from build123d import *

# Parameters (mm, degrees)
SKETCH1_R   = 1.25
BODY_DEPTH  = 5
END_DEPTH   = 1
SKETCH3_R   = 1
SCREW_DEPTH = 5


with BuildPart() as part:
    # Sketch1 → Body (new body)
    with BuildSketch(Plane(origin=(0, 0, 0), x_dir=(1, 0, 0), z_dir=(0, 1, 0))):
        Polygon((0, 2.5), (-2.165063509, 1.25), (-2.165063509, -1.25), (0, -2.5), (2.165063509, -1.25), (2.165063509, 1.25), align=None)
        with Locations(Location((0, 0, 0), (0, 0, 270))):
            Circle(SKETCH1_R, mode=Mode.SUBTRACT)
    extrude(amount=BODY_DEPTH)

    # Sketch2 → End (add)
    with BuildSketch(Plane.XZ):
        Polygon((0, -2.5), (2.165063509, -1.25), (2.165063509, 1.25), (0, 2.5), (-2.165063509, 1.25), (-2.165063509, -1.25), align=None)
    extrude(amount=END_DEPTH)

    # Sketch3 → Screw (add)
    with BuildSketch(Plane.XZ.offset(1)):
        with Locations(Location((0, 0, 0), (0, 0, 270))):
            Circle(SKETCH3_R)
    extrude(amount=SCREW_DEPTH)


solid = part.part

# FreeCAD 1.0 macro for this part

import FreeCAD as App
import Part
import Sketcher
from FreeCAD import Vector
Q = App.Units.Quantity

doc = App.newDocument("Part")
body = doc.addObject("PartDesign::Body", "Body")

# Sketch on XZ plane
sketch1 = body.newObject("Sketcher::SketchObject", "Sketch")
sketch1.AttachmentSupport = (doc.getObject("XZ_Plane"), [""])
sketch1.MapMode = "FlatFace"
sketch1.addGeometry([
    Part.LineSegment(Vector(0, -2.5, 0), Vector(-2.2, -1.2, 0)),  # 0
    Part.LineSegment(Vector(-2.2, -1.2, 0), Vector(-2.2, 1.2, 0)),  # 1
    Part.LineSegment(Vector(-2.2, 1.2, 0), Vector(0, 2.5, 0)),  # 2
    Part.LineSegment(Vector(0, 2.5, 0), Vector(2.2, 1.2, 0)),  # 3
    Part.LineSegment(Vector(2.2, 1.2, 0), Vector(2.2, -1.2, 0)),  # 4
    Part.LineSegment(Vector(2.2, -1.2, 0), Vector(0, -2.5, 0)),  # 5
    Part.Circle(Vector(0, 0, 0), Vector(0, 0, 1), 1.2),  # 6
], False)
sketch1.addConstraint([
    Sketcher.Constraint("Coincident", 0, 2, 1, 1),
    Sketcher.Constraint("Coincident", 1, 2, 2, 1),
    Sketcher.Constraint("Coincident", 2, 2, 3, 1),
    Sketcher.Constraint("Coincident", 3, 2, 4, 1),
    Sketcher.Constraint("Coincident", 4, 2, 5, 1),
    Sketcher.Constraint("Coincident", 5, 2, 0, 1),
    Sketcher.Constraint("Vertical", 1),
    Sketcher.Constraint("Vertical", 4),
    Sketcher.Constraint("Coincident", 6, 3, -1, 1),
    Sketcher.Constraint("Symmetric", 0, 2, 3, 2, -1, 1),
    Sketcher.Constraint("Symmetric", 2, 2, 5, 2, -1, 1),
    Sketcher.Constraint("PointOnObject", 2, 2, -2),
    Sketcher.Constraint("Parallel", 2, 5),
    Sketcher.Constraint("Horizontal", 1, 2, 3, 2),
    Sketcher.Constraint("Diameter", 6, Q("2.5 mm")),
    Sketcher.Constraint("Angle", 0, Q("150 deg")),
    Sketcher.Constraint("DistanceY", 1, 1, 1, 2, Q("2.5 mm")),
    Sketcher.Constraint("Distance", 0, Q("2.5 mm")),
])
pad1 = body.newObject("PartDesign::Pad", "Pad")
pad1.Profile = sketch1
pad1.Length = 5
pad1.Reversed = True

# Sketch on XZ plane
sketch2 = body.newObject("Sketcher::SketchObject", "Sketch001")
sketch2.AttachmentSupport = (doc.getObject("XZ_Plane"), [""])
sketch2.MapMode = "FlatFace"
sketch2.addGeometry([
    Part.LineSegment(Vector(0, -2.5, 0), Vector(2.2, -1.2, 0)),  # 0
    Part.LineSegment(Vector(2.2, -1.2, 0), Vector(2.2, 1.2, 0)),  # 1
    Part.LineSegment(Vector(2.2, 1.2, 0), Vector(0, 2.5, 0)),  # 2
    Part.LineSegment(Vector(0, 2.5, 0), Vector(-2.2, 1.2, 0)),  # 3
    Part.LineSegment(Vector(-2.2, 1.2, 0), Vector(-2.2, -1.2, 0)),  # 4
    Part.LineSegment(Vector(-2.2, -1.2, 0), Vector(0, -2.5, 0)),  # 5
], False)
sketch2.addConstraint([
    Sketcher.Constraint("Coincident", 0, 2, 1, 1),
    Sketcher.Constraint("Coincident", 1, 2, 2, 1),
    Sketcher.Constraint("Coincident", 2, 2, 3, 1),
    Sketcher.Constraint("Coincident", 3, 2, 4, 1),
    Sketcher.Constraint("Coincident", 4, 2, 5, 1),
    Sketcher.Constraint("Coincident", 5, 2, 0, 1),
    Sketcher.Constraint("Vertical", 1),
    Sketcher.Constraint("Vertical", 4),
    Sketcher.Constraint("Symmetric", 0, 2, 3, 2, -1, 1),
    Sketcher.Constraint("Symmetric", 2, 2, 5, 2, -1, 1),
    Sketcher.Constraint("PointOnObject", 2, 2, -2),
    Sketcher.Constraint("Parallel", 2, 5),
    Sketcher.Constraint("Horizontal", 1, 2, 3, 2),
    Sketcher.Constraint("Angle", 0, Q("30 deg")),
    Sketcher.Constraint("DistanceY", 1, 1, 1, 2, Q("2.5 mm")),
    Sketcher.Constraint("DistanceY", 5, 2, 2, 2, Q("5 mm")),
])
pad2 = body.newObject("PartDesign::Pad", "Pad001")
pad2.Profile = sketch2
pad2.Length = 1

# Sketch on XZ plane
sketch3 = body.newObject("Sketcher::SketchObject", "Sketch002")
sketch3.AttachmentSupport = (doc.getObject("XZ_Plane"), [""])
sketch3.MapMode = "FlatFace"
sketch3.AttachmentOffset = App.Placement(Vector(0, 0, 1), App.Rotation())
sketch3.addGeometry(Part.Circle(Vector(0, 0, 0), Vector(0, 0, 1), 1), False)
sketch3.addConstraint([
    Sketcher.Constraint("Coincident", 0, 3, -1, 1),
    Sketcher.Constraint("Diameter", 0, Q("2 mm")),
])
pad3 = body.newObject("PartDesign::Pad", "Pad002")
pad3.Profile = sketch3
pad3.Length = 5

doc.recompute()
